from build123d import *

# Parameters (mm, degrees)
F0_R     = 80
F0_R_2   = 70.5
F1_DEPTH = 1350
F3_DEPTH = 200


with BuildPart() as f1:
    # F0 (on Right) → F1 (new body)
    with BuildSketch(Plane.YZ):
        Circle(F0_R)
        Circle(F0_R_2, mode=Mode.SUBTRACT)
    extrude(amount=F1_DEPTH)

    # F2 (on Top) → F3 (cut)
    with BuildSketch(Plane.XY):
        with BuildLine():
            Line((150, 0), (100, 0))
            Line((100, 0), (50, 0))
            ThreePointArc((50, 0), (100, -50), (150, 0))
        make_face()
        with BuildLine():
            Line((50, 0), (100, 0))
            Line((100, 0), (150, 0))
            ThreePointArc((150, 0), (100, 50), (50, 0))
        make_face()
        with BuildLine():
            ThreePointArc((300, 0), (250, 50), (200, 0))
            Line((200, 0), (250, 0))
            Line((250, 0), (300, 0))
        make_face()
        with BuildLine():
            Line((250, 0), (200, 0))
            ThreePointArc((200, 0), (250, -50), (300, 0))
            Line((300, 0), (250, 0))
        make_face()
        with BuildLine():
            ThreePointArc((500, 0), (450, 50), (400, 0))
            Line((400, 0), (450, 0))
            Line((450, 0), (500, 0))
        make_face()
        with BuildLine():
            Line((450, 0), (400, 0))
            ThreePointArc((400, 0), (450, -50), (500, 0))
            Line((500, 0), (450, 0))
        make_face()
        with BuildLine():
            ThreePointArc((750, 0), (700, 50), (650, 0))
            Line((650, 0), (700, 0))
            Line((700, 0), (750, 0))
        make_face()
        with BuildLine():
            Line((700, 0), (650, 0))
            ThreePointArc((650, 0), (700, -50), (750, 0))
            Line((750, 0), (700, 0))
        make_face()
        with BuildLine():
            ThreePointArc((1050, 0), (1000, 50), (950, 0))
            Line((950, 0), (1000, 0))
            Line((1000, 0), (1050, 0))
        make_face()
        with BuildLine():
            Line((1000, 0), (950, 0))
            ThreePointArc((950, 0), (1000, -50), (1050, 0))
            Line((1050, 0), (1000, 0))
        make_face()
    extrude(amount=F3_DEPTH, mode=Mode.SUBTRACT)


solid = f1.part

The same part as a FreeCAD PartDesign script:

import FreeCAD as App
import Part
import Sketcher

V = App.Vector

doc = App.newDocument("Part")
params = doc.addObject("Spreadsheet::Sheet", "Params")
for row, (alias, value) in enumerate([
    ("sketch1_diameter", "160 mm"),
    ("sketch1_diameter2", "141 mm"),
    ("pad1_length", "1350 mm"),
    ("sketch2_diameter", "100 mm"),
    ("pocket1_length", "200 mm"),
], start=1):
    params.set(f"A{row}", alias)
    params.set(f"B{row}", "=" + value)
    params.setAlias(f"B{row}", alias)

body = doc.addObject("PartDesign::Body", "Body")

sketch1 = body.newObject("Sketcher::SketchObject", "Sketch")
sketch1.AttachmentSupport = (doc.getObject("YZ_Plane"), [""])
sketch1.MapMode = "FlatFace"
sketch1.addGeometry([
    Part.Circle(V(0, 0, 0), V(0, 0, 1), 80),
    Part.Circle(V(0, 0, 0), V(0, 0, 1), 70),
], False)
sketch1.addConstraint([
    Sketcher.Constraint("Coincident", 0, 3, -1, 1),
    Sketcher.Constraint("Coincident", 1, 3, -1, 1),
    Sketcher.Constraint("Diameter", 0, 160.0),
    Sketcher.Constraint("Diameter", 1, 141.0),
])
sketch1.setExpression("Constraints[2]", "Params.sketch1_diameter")
sketch1.setExpression("Constraints[3]", "Params.sketch1_diameter2")
pad1 = body.newObject("PartDesign::Pad", "Pad")
pad1.Profile = sketch1
pad1.setExpression("Length", "Params.pad1_length")

sketch2 = body.newObject("Sketcher::SketchObject", "Sketch001")
sketch2.AttachmentSupport = (doc.getObject("XY_Plane"), [""])
sketch2.MapMode = "FlatFace"
sketch2.addGeometry([
    Part.Circle(V(100, 0, 0), V(0, 0, 1), 50),
    Part.Circle(V(250, 0, 0), V(0, 0, 1), 50),
    Part.Circle(V(450, 0, 0), V(0, 0, 1), 50),
    Part.Circle(V(700, 0, 0), V(0, 0, 1), 50),
    Part.Circle(V(1000, 0, 0), V(0, 0, 1), 50),
], False)
sketch2.addConstraint([
    Sketcher.Constraint("Equal", 0, 1),
    Sketcher.Constraint("Equal", 1, 2),
    Sketcher.Constraint("Equal", 2, 3),
    Sketcher.Constraint("Equal", 3, 4),
    Sketcher.Constraint("PointOnObject", 0, 3, -1),
    Sketcher.Constraint("PointOnObject", 1, 3, -1),
    Sketcher.Constraint("PointOnObject", 2, 3, -1),
    Sketcher.Constraint("PointOnObject", 3, 3, -1),
    Sketcher.Constraint("PointOnObject", 4, 3, -1),
    Sketcher.Constraint("Diameter", 0, 100.0),
    Sketcher.Constraint("DistanceX", -1, 1, 0, 3, 100.0),
    Sketcher.Constraint("DistanceX", -1, 1, 1, 3, 250.0),
    Sketcher.Constraint("DistanceX", -1, 1, 2, 3, 450.0),
    Sketcher.Constraint("DistanceX", -1, 1, 3, 3, 700.0),
    Sketcher.Constraint("DistanceX", -1, 1, 4, 3, 1000.0),
])
sketch2.setExpression("Constraints[9]", "Params.sketch2_diameter")
pocket1 = body.newObject("PartDesign::Pocket", "Pocket")
pocket1.Profile = sketch2
pocket1.setExpression("Length", "Params.pocket1_length")
pocket1.Reversed = True

doc.recompute()
